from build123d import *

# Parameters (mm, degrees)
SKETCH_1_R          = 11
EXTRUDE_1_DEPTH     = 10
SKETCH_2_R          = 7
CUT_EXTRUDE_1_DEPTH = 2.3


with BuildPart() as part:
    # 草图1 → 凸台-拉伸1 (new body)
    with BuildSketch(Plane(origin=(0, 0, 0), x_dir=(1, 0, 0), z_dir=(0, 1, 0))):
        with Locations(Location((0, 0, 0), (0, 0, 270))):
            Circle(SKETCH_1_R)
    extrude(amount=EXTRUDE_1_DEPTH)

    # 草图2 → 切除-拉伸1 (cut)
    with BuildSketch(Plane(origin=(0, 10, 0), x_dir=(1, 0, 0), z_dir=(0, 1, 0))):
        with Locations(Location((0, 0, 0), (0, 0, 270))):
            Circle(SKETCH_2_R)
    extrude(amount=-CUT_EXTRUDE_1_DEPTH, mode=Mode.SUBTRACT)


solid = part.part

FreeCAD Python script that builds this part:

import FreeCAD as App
import Part
import Sketcher
from FreeCAD import Vector
Q = App.Units.Quantity

doc = App.newDocument("Part")
body = doc.addObject("PartDesign::Body", "Body")

sketch1 = doc.addObject("Sketcher::SketchObject", "Sketch")
body.addObject(sketch1)
sketch1.AttachmentSupport = (doc.XZ_Plane, [""])
sketch1.MapMode = "FlatFace"
sketch1.addGeometry(Part.Circle(Vector(0, 0, 0), Vector(0, 0, 1), 11), False)
sketch1.addConstraint(Sketcher.Constraint("Coincident", 0, 3, -1, 1))
sketch1.addConstraint(Sketcher.Constraint("Diameter", 0, Q("22 mm")))
pad1 = doc.addObject("PartDesign::Pad", "Pad")
body.addObject(pad1)
pad1.Profile = sketch1
pad1.Length = 10
pad1.Reversed = True

sketch2 = doc.addObject("Sketcher::SketchObject", "Sketch001")
body.addObject(sketch2)
sketch2.AttachmentSupport = (doc.XZ_Plane, [""])
sketch2.MapMode = "FlatFace"
sketch2.AttachmentOffset = App.Placement(Vector(0, 0, -10), App.Rotation())
sketch2.addGeometry(Part.Circle(Vector(0, 0, 0), Vector(0, 0, 1), 7), False)
sketch2.addConstraint(Sketcher.Constraint("Coincident", 0, 3, -1, 1))
sketch2.addConstraint(Sketcher.Constraint("Diameter", 0, Q("14 mm")))
pocket1 = doc.addObject("PartDesign::Pocket", "Pocket")
body.addObject(pocket1)
pocket1.Profile = sketch2
pocket1.Length = 2.3
pocket1.Reversed = True

doc.recompute()
